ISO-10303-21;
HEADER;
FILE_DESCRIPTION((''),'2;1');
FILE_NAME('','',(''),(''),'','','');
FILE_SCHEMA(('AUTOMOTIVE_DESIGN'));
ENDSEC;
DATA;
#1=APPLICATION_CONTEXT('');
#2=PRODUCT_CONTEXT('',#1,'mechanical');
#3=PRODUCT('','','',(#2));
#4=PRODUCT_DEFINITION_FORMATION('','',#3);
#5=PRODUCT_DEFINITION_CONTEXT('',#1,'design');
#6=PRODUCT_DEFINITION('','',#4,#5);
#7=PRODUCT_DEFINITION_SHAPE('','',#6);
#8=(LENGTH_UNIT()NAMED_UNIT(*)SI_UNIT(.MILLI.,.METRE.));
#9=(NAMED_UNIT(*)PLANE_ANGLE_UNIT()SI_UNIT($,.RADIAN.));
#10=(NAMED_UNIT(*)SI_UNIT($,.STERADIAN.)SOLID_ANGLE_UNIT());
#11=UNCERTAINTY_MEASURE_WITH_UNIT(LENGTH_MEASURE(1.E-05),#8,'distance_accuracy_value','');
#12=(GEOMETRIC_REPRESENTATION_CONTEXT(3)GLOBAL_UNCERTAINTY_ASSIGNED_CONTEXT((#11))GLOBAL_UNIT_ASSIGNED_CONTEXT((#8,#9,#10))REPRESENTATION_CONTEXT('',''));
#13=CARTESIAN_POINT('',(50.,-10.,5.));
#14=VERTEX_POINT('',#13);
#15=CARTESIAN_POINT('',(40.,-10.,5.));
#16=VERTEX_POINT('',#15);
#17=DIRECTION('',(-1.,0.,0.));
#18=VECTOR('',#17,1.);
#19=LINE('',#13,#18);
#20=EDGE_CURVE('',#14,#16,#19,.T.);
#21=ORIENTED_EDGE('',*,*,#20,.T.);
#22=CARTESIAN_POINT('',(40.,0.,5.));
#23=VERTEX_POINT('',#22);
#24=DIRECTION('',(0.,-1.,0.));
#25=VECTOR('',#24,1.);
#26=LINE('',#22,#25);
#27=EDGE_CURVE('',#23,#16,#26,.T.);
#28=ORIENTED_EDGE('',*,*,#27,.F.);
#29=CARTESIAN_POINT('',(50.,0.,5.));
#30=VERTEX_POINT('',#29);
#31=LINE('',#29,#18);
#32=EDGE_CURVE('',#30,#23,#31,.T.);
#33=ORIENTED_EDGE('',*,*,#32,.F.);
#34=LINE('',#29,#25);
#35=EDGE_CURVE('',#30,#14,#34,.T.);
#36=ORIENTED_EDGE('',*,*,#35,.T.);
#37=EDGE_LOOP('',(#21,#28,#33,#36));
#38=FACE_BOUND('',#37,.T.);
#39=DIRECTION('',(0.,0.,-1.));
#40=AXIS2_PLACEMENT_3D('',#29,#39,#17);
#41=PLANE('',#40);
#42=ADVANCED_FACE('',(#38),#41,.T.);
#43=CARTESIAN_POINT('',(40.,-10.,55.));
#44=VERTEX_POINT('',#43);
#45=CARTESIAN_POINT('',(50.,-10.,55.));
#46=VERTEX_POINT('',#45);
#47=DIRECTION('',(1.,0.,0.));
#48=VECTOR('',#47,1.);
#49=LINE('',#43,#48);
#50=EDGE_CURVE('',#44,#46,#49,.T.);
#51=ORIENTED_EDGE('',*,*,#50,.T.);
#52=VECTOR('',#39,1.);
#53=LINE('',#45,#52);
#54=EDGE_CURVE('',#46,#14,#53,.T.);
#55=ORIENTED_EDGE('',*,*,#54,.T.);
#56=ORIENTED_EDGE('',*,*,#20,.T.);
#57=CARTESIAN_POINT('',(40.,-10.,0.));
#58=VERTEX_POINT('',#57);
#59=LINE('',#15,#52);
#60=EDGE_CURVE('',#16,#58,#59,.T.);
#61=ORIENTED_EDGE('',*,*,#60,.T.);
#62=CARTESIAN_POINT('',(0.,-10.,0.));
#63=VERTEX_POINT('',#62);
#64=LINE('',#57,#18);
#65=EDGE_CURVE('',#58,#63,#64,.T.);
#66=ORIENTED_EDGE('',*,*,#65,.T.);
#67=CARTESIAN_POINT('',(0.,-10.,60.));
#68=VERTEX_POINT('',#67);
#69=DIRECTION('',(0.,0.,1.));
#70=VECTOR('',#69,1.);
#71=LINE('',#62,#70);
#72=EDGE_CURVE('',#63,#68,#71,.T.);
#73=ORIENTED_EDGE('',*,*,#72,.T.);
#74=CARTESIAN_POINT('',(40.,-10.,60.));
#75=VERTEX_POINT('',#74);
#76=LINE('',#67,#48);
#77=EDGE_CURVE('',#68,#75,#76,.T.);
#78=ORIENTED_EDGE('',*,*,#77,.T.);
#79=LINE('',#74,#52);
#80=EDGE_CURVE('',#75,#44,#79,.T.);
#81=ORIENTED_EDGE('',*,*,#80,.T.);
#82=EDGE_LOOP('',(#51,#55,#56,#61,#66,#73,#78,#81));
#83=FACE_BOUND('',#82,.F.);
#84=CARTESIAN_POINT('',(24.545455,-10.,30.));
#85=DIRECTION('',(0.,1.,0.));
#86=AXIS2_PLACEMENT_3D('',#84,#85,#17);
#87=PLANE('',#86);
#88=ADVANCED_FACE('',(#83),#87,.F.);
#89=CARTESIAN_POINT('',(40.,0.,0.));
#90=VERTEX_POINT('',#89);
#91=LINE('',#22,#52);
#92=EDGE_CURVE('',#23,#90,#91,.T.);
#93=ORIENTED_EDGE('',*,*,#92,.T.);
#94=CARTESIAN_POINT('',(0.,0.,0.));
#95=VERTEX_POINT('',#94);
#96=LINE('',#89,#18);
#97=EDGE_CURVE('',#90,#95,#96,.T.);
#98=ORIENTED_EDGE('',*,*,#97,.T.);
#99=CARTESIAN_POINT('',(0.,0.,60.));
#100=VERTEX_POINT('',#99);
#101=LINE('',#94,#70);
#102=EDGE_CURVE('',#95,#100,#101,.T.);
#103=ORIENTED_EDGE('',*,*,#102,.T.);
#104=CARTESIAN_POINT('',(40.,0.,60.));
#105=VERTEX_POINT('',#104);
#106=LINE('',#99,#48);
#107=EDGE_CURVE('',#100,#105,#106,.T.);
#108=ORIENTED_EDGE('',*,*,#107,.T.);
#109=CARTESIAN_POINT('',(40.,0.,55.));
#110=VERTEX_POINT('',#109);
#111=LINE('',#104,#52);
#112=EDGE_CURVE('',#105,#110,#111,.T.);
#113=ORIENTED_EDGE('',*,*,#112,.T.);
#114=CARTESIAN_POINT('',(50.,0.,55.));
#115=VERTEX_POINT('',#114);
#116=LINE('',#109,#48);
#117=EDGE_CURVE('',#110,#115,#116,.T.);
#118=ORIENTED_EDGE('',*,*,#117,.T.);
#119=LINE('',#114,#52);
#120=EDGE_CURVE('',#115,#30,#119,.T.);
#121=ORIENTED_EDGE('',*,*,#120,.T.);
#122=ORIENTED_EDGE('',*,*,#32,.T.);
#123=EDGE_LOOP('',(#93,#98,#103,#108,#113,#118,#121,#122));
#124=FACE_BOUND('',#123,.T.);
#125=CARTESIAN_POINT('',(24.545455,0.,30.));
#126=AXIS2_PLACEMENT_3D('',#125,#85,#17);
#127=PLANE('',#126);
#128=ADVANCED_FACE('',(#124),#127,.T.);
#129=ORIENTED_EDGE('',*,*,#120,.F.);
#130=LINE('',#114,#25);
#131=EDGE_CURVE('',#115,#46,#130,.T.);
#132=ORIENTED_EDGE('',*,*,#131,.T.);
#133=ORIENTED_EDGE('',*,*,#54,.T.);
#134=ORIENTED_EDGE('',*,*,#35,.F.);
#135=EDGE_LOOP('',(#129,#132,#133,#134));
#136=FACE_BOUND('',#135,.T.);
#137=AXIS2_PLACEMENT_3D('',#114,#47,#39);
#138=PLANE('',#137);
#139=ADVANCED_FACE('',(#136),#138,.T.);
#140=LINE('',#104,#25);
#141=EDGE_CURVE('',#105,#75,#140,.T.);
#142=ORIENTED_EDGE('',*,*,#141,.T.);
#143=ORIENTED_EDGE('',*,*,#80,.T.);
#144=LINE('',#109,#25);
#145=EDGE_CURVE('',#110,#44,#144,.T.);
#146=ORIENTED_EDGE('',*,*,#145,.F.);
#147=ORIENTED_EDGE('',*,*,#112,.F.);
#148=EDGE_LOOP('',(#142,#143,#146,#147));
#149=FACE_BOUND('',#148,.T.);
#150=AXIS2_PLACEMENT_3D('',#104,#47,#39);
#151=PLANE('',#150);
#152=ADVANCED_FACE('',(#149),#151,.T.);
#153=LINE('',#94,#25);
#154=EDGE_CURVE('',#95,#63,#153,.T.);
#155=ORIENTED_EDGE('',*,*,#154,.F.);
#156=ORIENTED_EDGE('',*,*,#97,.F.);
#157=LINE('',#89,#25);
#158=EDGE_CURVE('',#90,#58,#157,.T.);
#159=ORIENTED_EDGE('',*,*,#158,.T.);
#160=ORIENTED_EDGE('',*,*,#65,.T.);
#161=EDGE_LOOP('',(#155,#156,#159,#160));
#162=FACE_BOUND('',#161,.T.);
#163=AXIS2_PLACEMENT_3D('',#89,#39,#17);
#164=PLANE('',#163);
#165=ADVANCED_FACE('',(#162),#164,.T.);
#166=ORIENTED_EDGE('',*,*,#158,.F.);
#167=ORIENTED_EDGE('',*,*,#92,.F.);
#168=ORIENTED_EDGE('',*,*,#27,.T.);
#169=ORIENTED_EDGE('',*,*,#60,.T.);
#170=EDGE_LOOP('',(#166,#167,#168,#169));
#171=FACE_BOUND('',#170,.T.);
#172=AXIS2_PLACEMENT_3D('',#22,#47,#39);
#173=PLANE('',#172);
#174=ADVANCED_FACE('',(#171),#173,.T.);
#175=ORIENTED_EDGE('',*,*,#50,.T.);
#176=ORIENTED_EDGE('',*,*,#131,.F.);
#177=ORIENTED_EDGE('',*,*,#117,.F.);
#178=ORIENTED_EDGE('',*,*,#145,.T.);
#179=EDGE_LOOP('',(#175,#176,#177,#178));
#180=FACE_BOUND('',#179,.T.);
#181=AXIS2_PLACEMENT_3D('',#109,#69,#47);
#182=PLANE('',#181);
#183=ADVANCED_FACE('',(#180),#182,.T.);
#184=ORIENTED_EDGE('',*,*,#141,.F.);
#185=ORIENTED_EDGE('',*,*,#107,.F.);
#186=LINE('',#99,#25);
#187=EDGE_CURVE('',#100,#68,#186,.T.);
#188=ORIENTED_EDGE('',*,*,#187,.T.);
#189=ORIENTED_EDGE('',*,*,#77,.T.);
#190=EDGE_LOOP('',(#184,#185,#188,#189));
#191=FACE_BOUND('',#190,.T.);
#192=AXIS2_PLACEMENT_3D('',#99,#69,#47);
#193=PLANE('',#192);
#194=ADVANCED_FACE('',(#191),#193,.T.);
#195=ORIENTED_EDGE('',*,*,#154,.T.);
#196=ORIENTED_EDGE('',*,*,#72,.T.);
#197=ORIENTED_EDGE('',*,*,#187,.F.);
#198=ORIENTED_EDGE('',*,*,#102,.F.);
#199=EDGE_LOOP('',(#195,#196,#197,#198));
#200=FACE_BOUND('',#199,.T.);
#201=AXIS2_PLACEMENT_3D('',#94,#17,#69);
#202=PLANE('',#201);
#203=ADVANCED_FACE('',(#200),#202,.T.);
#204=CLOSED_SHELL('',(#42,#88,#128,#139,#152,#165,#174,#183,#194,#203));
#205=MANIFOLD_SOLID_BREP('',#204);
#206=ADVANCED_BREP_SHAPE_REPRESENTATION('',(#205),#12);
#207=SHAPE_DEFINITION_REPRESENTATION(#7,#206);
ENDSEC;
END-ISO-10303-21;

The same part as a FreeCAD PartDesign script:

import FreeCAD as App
import Part
import Sketcher
from FreeCAD import Vector
Q = App.Units.Quantity


def add_polygon(sketch, points):
    """Adds a closed chain of lines whose ends are joined by coincident constraints."""
    first, n = sketch.GeometryCount, len(points)
    for a, b in zip(points, points[1:] + points[:1]):
        sketch.addGeometry(Part.LineSegment(App.Vector(*a, 0), App.Vector(*b, 0)), False)
    for i in range(n):
        sketch.addConstraint(Sketcher.Constraint("Coincident", first + i, 2, first + (i + 1) % n, 1))

doc = App.newDocument("Part")
body = doc.addObject("PartDesign::Body", "Body")

# Sketch on XZ plane
sketch1 = body.newObject("Sketcher::SketchObject", "Sketch")
sketch1.AttachmentSupport = (doc.getObject("XZ_Plane"), [""])
sketch1.MapMode = "FlatFace"
add_polygon(sketch1, [(0, 60), (0, 0), (40, 0), (40, 5), (50, 5), (50, 55), (40, 55), (40, 60)])  # lines 0-7
sketch1.addConstraint(Sketcher.Constraint("Vertical", 0))
sketch1.addConstraint(Sketcher.Constraint("Horizontal", 1))
sketch1.addConstraint(Sketcher.Constraint("Vertical", 2))
sketch1.addConstraint(Sketcher.Constraint("Horizontal", 3))
sketch1.addConstraint(Sketcher.Constraint("Vertical", 4))
sketch1.addConstraint(Sketcher.Constraint("Horizontal", 5))
sketch1.addConstraint(Sketcher.Constraint("Vertical", 6))
sketch1.addConstraint(Sketcher.Constraint("Horizontal", 7))
sketch1.addConstraint(Sketcher.Constraint("Coincident", 0, 2, -1, 1))
sketch1.addConstraint(Sketcher.Constraint("Vertical", 2, 2, 5, 2))
sketch1.addConstraint(Sketcher.Constraint("Equal", 2, 6))
sketch1.addConstraint(Sketcher.Constraint("DistanceX", 1, 1, 1, 2, Q("40 mm")))
sketch1.addConstraint(Sketcher.Constraint("DistanceX", 3, 1, 3, 2, Q("10 mm")))
sketch1.addConstraint(Sketcher.Constraint("DistanceY", 0, 2, 0, 1, Q("60 mm")))
sketch1.addConstraint(Sketcher.Constraint("DistanceY", 2, 1, 2, 2, Q("5 mm")))
pad1 = body.newObject("PartDesign::Pad", "Pad")
pad1.Profile = sketch1
pad1.Length = 10

doc.recompute()
